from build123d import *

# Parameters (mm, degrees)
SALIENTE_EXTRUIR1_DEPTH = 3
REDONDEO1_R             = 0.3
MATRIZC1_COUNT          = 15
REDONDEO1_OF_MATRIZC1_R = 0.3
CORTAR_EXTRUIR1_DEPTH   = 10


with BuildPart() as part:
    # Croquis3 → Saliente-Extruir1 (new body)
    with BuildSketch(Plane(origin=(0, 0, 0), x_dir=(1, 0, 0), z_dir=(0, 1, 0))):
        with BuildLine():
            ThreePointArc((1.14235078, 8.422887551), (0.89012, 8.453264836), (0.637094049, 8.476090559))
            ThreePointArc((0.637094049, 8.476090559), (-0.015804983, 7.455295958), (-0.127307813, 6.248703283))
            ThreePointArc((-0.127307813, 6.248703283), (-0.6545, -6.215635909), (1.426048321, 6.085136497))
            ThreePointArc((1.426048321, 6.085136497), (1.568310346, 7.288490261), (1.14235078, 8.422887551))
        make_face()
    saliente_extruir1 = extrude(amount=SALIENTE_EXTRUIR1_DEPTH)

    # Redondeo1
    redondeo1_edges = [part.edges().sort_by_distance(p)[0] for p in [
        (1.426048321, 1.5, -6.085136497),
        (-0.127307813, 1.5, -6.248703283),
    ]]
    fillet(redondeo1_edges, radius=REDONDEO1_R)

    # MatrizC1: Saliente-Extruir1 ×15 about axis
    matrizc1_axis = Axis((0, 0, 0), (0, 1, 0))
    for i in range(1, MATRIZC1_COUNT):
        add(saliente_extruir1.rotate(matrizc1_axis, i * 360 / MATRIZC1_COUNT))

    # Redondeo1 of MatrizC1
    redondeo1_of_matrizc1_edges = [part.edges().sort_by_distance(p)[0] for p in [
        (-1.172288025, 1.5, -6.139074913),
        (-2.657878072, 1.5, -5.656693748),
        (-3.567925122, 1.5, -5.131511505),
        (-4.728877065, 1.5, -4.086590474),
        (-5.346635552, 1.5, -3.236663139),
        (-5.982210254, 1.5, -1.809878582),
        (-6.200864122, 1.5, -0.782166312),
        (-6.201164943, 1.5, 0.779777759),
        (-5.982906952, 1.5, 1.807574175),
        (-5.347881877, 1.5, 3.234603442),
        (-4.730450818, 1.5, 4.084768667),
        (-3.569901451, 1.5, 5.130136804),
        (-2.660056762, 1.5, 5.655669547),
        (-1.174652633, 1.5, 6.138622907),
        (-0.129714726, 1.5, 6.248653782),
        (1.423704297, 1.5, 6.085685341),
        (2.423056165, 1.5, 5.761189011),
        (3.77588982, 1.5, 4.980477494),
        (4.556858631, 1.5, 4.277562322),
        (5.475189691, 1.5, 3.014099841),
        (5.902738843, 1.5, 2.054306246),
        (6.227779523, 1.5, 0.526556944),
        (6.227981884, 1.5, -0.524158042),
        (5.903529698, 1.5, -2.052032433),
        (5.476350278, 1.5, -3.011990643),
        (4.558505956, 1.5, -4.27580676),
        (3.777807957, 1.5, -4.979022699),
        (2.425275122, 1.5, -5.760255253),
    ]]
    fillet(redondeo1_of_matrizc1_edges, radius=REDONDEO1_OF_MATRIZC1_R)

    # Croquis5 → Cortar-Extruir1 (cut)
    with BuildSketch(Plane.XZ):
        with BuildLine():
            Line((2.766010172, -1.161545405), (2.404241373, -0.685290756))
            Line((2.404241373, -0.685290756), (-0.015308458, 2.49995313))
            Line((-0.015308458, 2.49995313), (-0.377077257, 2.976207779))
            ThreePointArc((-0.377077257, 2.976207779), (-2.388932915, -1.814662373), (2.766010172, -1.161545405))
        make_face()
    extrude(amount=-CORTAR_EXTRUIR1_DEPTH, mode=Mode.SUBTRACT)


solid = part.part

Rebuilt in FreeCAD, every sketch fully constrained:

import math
import FreeCAD as App
import Part
import Sketcher
from FreeCAD import Vector
Q = App.Units.Quantity


def edges_at(feature, points):
    """Names of the edges that pass closest to the given points."""
    edges = feature.Shape.Edges
    near = lambda p: min(range(len(edges)), key=lambda i: edges[i].distToShape(Part.Vertex(*p))[0])
    return sorted({f"Edge{near(p) + 1}" for p in points})

doc = App.newDocument("Part")
body = doc.addObject("PartDesign::Body", "Body")

# Sketch on XZ plane
sketch1 = doc.addObject("Sketcher::SketchObject", "Sketch")
body.addObject(sketch1)
sketch1.AttachmentSupport = (doc.XZ_Plane, [""])
sketch1.MapMode = "FlatFace"
sketch1.addGeometry(Part.ArcOfCircle(Part.Circle(Vector(0, 0, 0), Vector(0, 0, 1), 8.5), math.radians(-85.7), math.radians(-82.28)), False)
sketch1.addGeometry(Part.ArcOfCircle(Part.Circle(Vector(2.4, -6.6, 0), Vector(0, 0, 1), 2.6), math.radians(172), math.radians(226)), False)
sketch1.addGeometry(Part.ArcOfCircle(Part.Circle(Vector(0, 0, 0), Vector(0, 0, 1), 6.2), math.radians(-77), math.radians(269)), False)
sketch1.addGeometry(Part.ArcOfCircle(Part.Circle(Vector(-1, -7, 0), Vector(0, 0, 1), 2.6), math.radians(-34), math.radians(20)), False)
sketch1.addConstraint(Sketcher.Constraint("Coincident", 0, 1, 1, 2))
sketch1.addConstraint(Sketcher.Constraint("Coincident", 1, 1, 2, 2))
sketch1.addConstraint(Sketcher.Constraint("Coincident", 2, 1, 3, 2))
sketch1.addConstraint(Sketcher.Constraint("Coincident", 3, 1, 0, 2))
sketch1.addConstraint(Sketcher.Constraint("Coincident", 0, 3, -1, 1))
sketch1.addConstraint(Sketcher.Constraint("Coincident", 2, 3, -1, 1))
sketch1.addConstraint(Sketcher.Constraint("Equal", 1, 3))
sketch1.addConstraint(Sketcher.Constraint("Radius", 0, Q("8.499999 mm")))
sketch1.addConstraint(Sketcher.Constraint("Radius", 2, Q("6.25 mm")))
sketch1.addConstraint(Sketcher.Constraint("Radius", 1, Q("2.565205 mm")))
sketch1.addConstraint(Sketcher.Constraint("DistanceX", 1, 1, 0, 1, Q("0.764402 mm")))
sketch1.addConstraint(Sketcher.Constraint("DistanceY", 1, 3, -1, 1, Q("6.62263 mm")))
sketch1.addConstraint(Sketcher.Constraint("DistanceX", 3, 3, -1, 1, Q("0.978212 mm")))
sketch1.addConstraint(Sketcher.Constraint("DistanceX", -1, 1, 2, 1, Q("1.426048 mm")))
pad1 = doc.addObject("PartDesign::Pad", "Pad")
body.addObject(pad1)
pad1.Profile = sketch1
pad1.Length = 3
pad1.Reversed = True
doc.recompute()

fillet = doc.addObject("PartDesign::Fillet", "Fillet")
body.addObject(fillet)
fillet.Base = (pad1, edges_at(pad1, [(1.426, 1.5, -6.085), (-0.127, 1.5, -6.249)]))
fillet.Radius = 0.3
doc.recompute()

polarpattern = doc.addObject("PartDesign::PolarPattern", "PolarPattern")
body.addObject(polarpattern)
polarpattern.Originals = [pad1]
polarpattern.Axis = (doc.Y_Axis, [""])
polarpattern.Angle = 360
polarpattern.Occurrences = 15
body.Tip = polarpattern
doc.recompute()

fillet2 = doc.addObject("PartDesign::Fillet", "Fillet001")
body.addObject(fillet2)
fillet2.Base = (polarpattern, edges_at(polarpattern, [
    (-1.172, 1.5, -6.139),
    (-2.658, 1.5, -5.657),
    (-3.568, 1.5, -5.132),
    (-4.729, 1.5, -4.087),
    (-5.347, 1.5, -3.237),
    (-5.982, 1.5, -1.81),
    (-6.201, 1.5, -0.782),
    (-6.201, 1.5, 0.78),
    (-5.983, 1.5, 1.808),
    (-5.348, 1.5, 3.235),
    (-4.73, 1.5, 4.085),
    (-3.57, 1.5, 5.13),
    (-2.66, 1.5, 5.656),
    (-1.175, 1.5, 6.139),
    (-0.13, 1.5, 6.249),
    (1.424, 1.5, 6.086),
    (2.423, 1.5, 5.761),
    (3.776, 1.5, 4.98),
    (4.557, 1.5, 4.278),
    (5.475, 1.5, 3.014),
    (5.903, 1.5, 2.054),
    (6.228, 1.5, 0.527),
    (6.228, 1.5, -0.524),
    (5.904, 1.5, -2.052),
    (5.476, 1.5, -3.012),
    (4.559, 1.5, -4.276),
    (3.778, 1.5, -4.979),
    (2.425, 1.5, -5.76),
]))
fillet2.Radius = 0.3

# Sketch on XZ plane
sketch2 = doc.addObject("Sketcher::SketchObject", "Sketch001")
body.addObject(sketch2)
sketch2.AttachmentSupport = (doc.XZ_Plane, [""])
sketch2.MapMode = "FlatFace"
sketch2.addGeometry(Part.LineSegment(Vector(2.8, -1.2, 0), Vector(2.4, -0.7, 0)), False)
sketch2.addGeometry(Part.LineSegment(Vector(2.4, -0.7, 0), Vector(0, 2.5, 0)), False)
sketch2.addGeometry(Part.LineSegment(Vector(0, 2.5, 0), Vector(-0.4, 3, 0)), False)
sketch2.addGeometry(Part.ArcOfCircle(Part.Circle(Vector(0, 0, 0), Vector(0, 0, 1), 3), math.radians(97), math.radians(337)), False)
sketch2.addConstraint(Sketcher.Constraint("Coincident", 0, 2, 1, 1))
sketch2.addConstraint(Sketcher.Constraint("Coincident", 1, 2, 2, 1))
sketch2.addConstraint(Sketcher.Constraint("Coincident", 2, 2, 3, 1))
sketch2.addConstraint(Sketcher.Constraint("Coincident", 3, 2, 0, 1))
sketch2.addConstraint(Sketcher.Constraint("Coincident", 3, 3, -1, 1))
sketch2.addConstraint(Sketcher.Constraint("Parallel", 0, 1))
sketch2.addConstraint(Sketcher.Constraint("Parallel", 1, 2))
sketch2.addConstraint(Sketcher.Constraint("Equal", 0, 2))
sketch2.addConstraint(Sketcher.Constraint("Radius", 3, Q("3 mm")))
sketch2.addConstraint(Sketcher.Constraint("Distance", 1, Q("4 mm")))
sketch2.addConstraint(Sketcher.Constraint("DistanceY", 0, 2, 2, 2, Q("3.661499 mm")))
sketch2.addConstraint(Sketcher.Constraint("DistanceX", -1, 1, 0, 2, Q("2.404241 mm")))
pocket1 = doc.addObject("PartDesign::Pocket", "Pocket")
body.addObject(pocket1)
pocket1.Profile = sketch2
pocket1.Length = 10

doc.recompute()
